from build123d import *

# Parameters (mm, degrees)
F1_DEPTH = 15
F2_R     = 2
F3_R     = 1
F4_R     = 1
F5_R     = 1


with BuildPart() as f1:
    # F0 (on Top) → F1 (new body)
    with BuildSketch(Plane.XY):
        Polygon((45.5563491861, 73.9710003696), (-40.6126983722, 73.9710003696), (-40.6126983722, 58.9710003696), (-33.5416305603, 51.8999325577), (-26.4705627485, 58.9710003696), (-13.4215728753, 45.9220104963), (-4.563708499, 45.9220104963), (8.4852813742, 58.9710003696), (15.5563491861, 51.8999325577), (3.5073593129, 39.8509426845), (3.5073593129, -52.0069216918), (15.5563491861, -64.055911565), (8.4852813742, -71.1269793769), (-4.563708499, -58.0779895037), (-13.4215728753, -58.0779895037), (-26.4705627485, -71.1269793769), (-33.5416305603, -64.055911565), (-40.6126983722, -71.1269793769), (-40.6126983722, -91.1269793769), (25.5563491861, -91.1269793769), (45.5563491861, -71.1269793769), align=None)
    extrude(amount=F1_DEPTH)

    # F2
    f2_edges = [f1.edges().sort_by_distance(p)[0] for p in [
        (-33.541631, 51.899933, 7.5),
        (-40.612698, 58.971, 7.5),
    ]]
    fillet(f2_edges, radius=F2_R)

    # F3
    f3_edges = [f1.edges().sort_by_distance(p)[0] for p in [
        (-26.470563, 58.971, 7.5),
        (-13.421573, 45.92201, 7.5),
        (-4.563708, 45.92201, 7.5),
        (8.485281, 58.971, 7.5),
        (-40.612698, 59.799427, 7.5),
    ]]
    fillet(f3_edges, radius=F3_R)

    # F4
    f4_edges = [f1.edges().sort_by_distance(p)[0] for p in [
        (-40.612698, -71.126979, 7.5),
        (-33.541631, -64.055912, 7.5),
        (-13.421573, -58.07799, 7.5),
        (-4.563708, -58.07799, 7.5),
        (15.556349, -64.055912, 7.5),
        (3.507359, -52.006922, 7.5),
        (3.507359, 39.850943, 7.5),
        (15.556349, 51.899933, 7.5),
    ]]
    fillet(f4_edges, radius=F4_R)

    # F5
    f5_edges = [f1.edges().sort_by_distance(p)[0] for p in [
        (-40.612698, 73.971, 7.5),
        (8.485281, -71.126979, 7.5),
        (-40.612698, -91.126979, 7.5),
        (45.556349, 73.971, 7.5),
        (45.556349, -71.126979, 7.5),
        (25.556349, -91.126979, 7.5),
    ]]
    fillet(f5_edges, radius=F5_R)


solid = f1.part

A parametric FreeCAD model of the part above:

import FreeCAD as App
import Part
import Sketcher

V = App.Vector
Q = App.Units.Quantity


def edges_at(feature, points):
    """Names of the edges that pass closest to the given points."""
    edges = feature.Shape.Edges
    near = lambda p: min(range(len(edges)), key=lambda i: edges[i].distToShape(Part.Vertex(*p))[0])
    return sorted({f"Edge{near(p) + 1}" for p in points})

doc = App.newDocument("Part")
params = doc.addObject("Spreadsheet::Sheet", "Params")
for row, (alias, value) in enumerate([
    ("sketch1_height", "15 mm"),
    ("sketch1_height2", "20 mm"),
    ("sketch1_length", "10 mm"),
    ("pad1_length", "15 mm"),
    ("fillet_radius", "2 mm"),
    ("fillet2_radius", "1 mm"),
    ("fillet3_radius", "1 mm"),
    ("fillet4_radius", "1 mm"),
], start=1):
    params.set(f"A{row}", alias)
    params.set(f"B{row}", "=" + value)
    params.setAlias(f"B{row}", alias)

body = doc.addObject("PartDesign::Body", "Body")

sketch1 = body.newObject("Sketcher::SketchObject", "Sketch")
sketch1.AttachmentSupport = (doc.getObject("XY_Plane"), [""])
sketch1.MapMode = "FlatFace"
sketch1.addGeometry([
    Part.LineSegment(V(45.556349, 73.971, 0), V(-40.612698, 73.971, 0)),
    Part.LineSegment(V(-40.612698, 73.971, 0), V(-40.612698, 58.971, 0)),
    Part.LineSegment(V(-40.612698, 58.971, 0), V(-33.541631, 51.899933, 0)),
    Part.LineSegment(V(-33.541631, 51.899933, 0), V(-26.470563, 58.971, 0)),
    Part.LineSegment(V(-26.470563, 58.971, 0), V(-13.421573, 45.92201, 0)),
    Part.LineSegment(V(-13.421573, 45.92201, 0), V(-4.563708, 45.92201, 0)),
    Part.LineSegment(V(-4.563708, 45.92201, 0), V(8.485281, 58.971, 0)),
    Part.LineSegment(V(8.485281, 58.971, 0), V(15.556349, 51.899933, 0)),
    Part.LineSegment(V(15.556349, 51.899933, 0), V(3.507359, 39.850943, 0)),
    Part.LineSegment(V(3.507359, 39.850943, 0), V(3.507359, -52.006922, 0)),
    Part.LineSegment(V(3.507359, -52.006922, 0), V(15.556349, -64.055912, 0)),
    Part.LineSegment(V(15.556349, -64.055912, 0), V(8.485281, -71.126979, 0)),
    Part.LineSegment(V(8.485281, -71.126979, 0), V(-4.563708, -58.07799, 0)),
    Part.LineSegment(V(-4.563708, -58.07799, 0), V(-13.421573, -58.07799, 0)),
    Part.LineSegment(V(-13.421573, -58.07799, 0), V(-26.470563, -71.126979, 0)),
    Part.LineSegment(V(-26.470563, -71.126979, 0), V(-33.541631, -64.055912, 0)),
    Part.LineSegment(V(-33.541631, -64.055912, 0), V(-40.612698, -71.126979, 0)),
    Part.LineSegment(V(-40.612698, -71.126979, 0), V(-40.612698, -91.126979, 0)),
    Part.LineSegment(V(-40.612698, -91.126979, 0), V(25.556349, -91.126979, 0)),
    Part.LineSegment(V(25.556349, -91.126979, 0), V(45.556349, -71.126979, 0)),
    Part.LineSegment(V(45.556349, -71.126979, 0), V(45.556349, 73.971, 0)),
], False)
sketch1.addConstraint([
    Sketcher.Constraint("Coincident", 0, 2, 1, 1),
    Sketcher.Constraint("Coincident", 1, 2, 2, 1),
    Sketcher.Constraint("Coincident", 2, 2, 3, 1),
    Sketcher.Constraint("Coincident", 3, 2, 4, 1),
    Sketcher.Constraint("Coincident", 4, 2, 5, 1),
    Sketcher.Constraint("Coincident", 5, 2, 6, 1),
    Sketcher.Constraint("Coincident", 6, 2, 7, 1),
    Sketcher.Constraint("Coincident", 7, 2, 8, 1),
    Sketcher.Constraint("Coincident", 8, 2, 9, 1),
    Sketcher.Constraint("Coincident", 9, 2, 10, 1),
    Sketcher.Constraint("Coincident", 10, 2, 11, 1),
    Sketcher.Constraint("Coincident", 11, 2, 12, 1),
    Sketcher.Constraint("Coincident", 12, 2, 13, 1),
    Sketcher.Constraint("Coincident", 13, 2, 14, 1),
    Sketcher.Constraint("Coincident", 14, 2, 15, 1),
    Sketcher.Constraint("Coincident", 15, 2, 16, 1),
    Sketcher.Constraint("Coincident", 16, 2, 17, 1),
    Sketcher.Constraint("Coincident", 17, 2, 18, 1),
    Sketcher.Constraint("Coincident", 18, 2, 19, 1),
    Sketcher.Constraint("Coincident", 19, 2, 20, 1),
    Sketcher.Constraint("Coincident", 20, 2, 0, 1),
    Sketcher.Constraint("Horizontal", 0),
    Sketcher.Constraint("Vertical", 1),
    Sketcher.Constraint("Horizontal", 5),
    Sketcher.Constraint("Vertical", 9),
    Sketcher.Constraint("Horizontal", 13),
    Sketcher.Constraint("Vertical", 17),
    Sketcher.Constraint("Horizontal", 18),
    Sketcher.Constraint("Vertical", 20),
    Sketcher.Constraint("Perpendicular", 2, 3),
    Sketcher.Constraint("Perpendicular", 3, 4),
    Sketcher.Constraint("Perpendicular", 4, 6),
    Sketcher.Constraint("Perpendicular", 6, 7),
    Sketcher.Constraint("Perpendicular", 7, 8),
    Sketcher.Constraint("Perpendicular", 8, 10),
    Sketcher.Constraint("Perpendicular", 10, 11),
    Sketcher.Constraint("Perpendicular", 11, 12),
    Sketcher.Constraint("Perpendicular", 12, 14),
    Sketcher.Constraint("Perpendicular", 14, 15),
    Sketcher.Constraint("Perpendicular", 15, 16),
    Sketcher.Constraint("Parallel", 16, 19),
    Sketcher.Constraint("Horizontal", 1, 2, 3, 2),
    Sketcher.Constraint("Horizontal", 3, 2, 6, 2),
    Sketcher.Constraint("Horizontal", 2, 2, 7, 2),
    Sketcher.Constraint("Horizontal", 11, 2, 14, 2),
    Sketcher.Constraint("Horizontal", 10, 2, 15, 2),
    Sketcher.Constraint("Horizontal", 14, 2, 16, 2),
    Sketcher.Constraint("Horizontal", 16, 2, 19, 2),
    Sketcher.Constraint("Vertical", 7, 2, 10, 2),
    Sketcher.Constraint("Vertical", 6, 2, 11, 2),
    Sketcher.Constraint("Vertical", 5, 2, 12, 2),
    Sketcher.Constraint("Vertical", 4, 2, 13, 2),
    Sketcher.Constraint("Vertical", 3, 2, 14, 2),
    Sketcher.Constraint("DistanceY", 1, 2, 1, 1, Q("15 mm")),
    Sketcher.Constraint("DistanceY", 17, 2, 17, 1, Q("20 mm")),
    Sketcher.Constraint("Distance", 2, Q("10 mm")),
    Sketcher.Constraint("DistanceY", 12, 2, 5, 2, Q("104 mm")),
    Sketcher.Constraint("DistanceX", 10, 2, 18, 2, Q("10 mm")),
    Sketcher.Constraint("DistanceY", -1, 1, 0, 2, Q("73.971 mm")),
    Sketcher.Constraint("DistanceY", 20, 1, 20, 2, Q("145.09798 mm")),
    Sketcher.Constraint("DistanceX", 0, 2, -1, 1, Q("40.612698 mm")),
    Sketcher.Constraint("DistanceX", 0, 2, 0, 1, Q("86.169048 mm")),
    Sketcher.Constraint("DistanceY", 9, 2, 9, 1, Q("91.857864 mm")),
])
sketch1.setExpression("Constraints[53]", "Params.sketch1_height")
sketch1.setExpression("Constraints[54]", "Params.sketch1_height2")
sketch1.setExpression("Constraints[55]", "Params.sketch1_length")
pad1 = body.newObject("PartDesign::Pad", "Pad")
pad1.Profile = sketch1
pad1.setExpression("Length", "Params.pad1_length")
doc.recompute()

fillet = body.newObject("PartDesign::Fillet", "Fillet")
fillet.Base = (pad1, edges_at(pad1, [(-33.542, 51.9, 7.5), (-40.613, 58.971, 7.5)]))
fillet.setExpression("Radius", "Params.fillet_radius")
doc.recompute()

fillet2 = body.newObject("PartDesign::Fillet", "Fillet001")
fillet2.Base = (fillet, edges_at(fillet, [
    (-26.471, 58.971, 7.5),
    (-13.422, 45.922, 7.5),
    (-4.564, 45.922, 7.5),
    (8.485, 58.971, 7.5),
    (-40.613, 59.799, 7.5),
]))
fillet2.setExpression("Radius", "Params.fillet2_radius")
doc.recompute()

fillet3 = body.newObject("PartDesign::Fillet", "Fillet002")
fillet3.Base = (fillet2, edges_at(fillet2, [
    (-40.613, -71.127, 7.5),
    (-33.542, -64.056, 7.5),
    (-13.422, -58.078, 7.5),
    (-4.564, -58.078, 7.5),
    (15.556, -64.056, 7.5),
    (3.507, -52.007, 7.5),
    (3.507, 39.851, 7.5),
    (15.556, 51.9, 7.5),
]))
fillet3.setExpression("Radius", "Params.fillet3_radius")
doc.recompute()

fillet4 = body.newObject("PartDesign::Fillet", "Fillet003")
fillet4.Base = (fillet3, edges_at(fillet3, [
    (-40.613, 73.971, 7.5),
    (8.485, -71.127, 7.5),
    (-40.613, -91.127, 7.5),
    (45.556, 73.971, 7.5),
    (45.556, -71.127, 7.5),
    (25.556, -91.127, 7.5),
]))
fillet4.setExpression("Radius", "Params.fillet4_radius")

doc.recompute()
